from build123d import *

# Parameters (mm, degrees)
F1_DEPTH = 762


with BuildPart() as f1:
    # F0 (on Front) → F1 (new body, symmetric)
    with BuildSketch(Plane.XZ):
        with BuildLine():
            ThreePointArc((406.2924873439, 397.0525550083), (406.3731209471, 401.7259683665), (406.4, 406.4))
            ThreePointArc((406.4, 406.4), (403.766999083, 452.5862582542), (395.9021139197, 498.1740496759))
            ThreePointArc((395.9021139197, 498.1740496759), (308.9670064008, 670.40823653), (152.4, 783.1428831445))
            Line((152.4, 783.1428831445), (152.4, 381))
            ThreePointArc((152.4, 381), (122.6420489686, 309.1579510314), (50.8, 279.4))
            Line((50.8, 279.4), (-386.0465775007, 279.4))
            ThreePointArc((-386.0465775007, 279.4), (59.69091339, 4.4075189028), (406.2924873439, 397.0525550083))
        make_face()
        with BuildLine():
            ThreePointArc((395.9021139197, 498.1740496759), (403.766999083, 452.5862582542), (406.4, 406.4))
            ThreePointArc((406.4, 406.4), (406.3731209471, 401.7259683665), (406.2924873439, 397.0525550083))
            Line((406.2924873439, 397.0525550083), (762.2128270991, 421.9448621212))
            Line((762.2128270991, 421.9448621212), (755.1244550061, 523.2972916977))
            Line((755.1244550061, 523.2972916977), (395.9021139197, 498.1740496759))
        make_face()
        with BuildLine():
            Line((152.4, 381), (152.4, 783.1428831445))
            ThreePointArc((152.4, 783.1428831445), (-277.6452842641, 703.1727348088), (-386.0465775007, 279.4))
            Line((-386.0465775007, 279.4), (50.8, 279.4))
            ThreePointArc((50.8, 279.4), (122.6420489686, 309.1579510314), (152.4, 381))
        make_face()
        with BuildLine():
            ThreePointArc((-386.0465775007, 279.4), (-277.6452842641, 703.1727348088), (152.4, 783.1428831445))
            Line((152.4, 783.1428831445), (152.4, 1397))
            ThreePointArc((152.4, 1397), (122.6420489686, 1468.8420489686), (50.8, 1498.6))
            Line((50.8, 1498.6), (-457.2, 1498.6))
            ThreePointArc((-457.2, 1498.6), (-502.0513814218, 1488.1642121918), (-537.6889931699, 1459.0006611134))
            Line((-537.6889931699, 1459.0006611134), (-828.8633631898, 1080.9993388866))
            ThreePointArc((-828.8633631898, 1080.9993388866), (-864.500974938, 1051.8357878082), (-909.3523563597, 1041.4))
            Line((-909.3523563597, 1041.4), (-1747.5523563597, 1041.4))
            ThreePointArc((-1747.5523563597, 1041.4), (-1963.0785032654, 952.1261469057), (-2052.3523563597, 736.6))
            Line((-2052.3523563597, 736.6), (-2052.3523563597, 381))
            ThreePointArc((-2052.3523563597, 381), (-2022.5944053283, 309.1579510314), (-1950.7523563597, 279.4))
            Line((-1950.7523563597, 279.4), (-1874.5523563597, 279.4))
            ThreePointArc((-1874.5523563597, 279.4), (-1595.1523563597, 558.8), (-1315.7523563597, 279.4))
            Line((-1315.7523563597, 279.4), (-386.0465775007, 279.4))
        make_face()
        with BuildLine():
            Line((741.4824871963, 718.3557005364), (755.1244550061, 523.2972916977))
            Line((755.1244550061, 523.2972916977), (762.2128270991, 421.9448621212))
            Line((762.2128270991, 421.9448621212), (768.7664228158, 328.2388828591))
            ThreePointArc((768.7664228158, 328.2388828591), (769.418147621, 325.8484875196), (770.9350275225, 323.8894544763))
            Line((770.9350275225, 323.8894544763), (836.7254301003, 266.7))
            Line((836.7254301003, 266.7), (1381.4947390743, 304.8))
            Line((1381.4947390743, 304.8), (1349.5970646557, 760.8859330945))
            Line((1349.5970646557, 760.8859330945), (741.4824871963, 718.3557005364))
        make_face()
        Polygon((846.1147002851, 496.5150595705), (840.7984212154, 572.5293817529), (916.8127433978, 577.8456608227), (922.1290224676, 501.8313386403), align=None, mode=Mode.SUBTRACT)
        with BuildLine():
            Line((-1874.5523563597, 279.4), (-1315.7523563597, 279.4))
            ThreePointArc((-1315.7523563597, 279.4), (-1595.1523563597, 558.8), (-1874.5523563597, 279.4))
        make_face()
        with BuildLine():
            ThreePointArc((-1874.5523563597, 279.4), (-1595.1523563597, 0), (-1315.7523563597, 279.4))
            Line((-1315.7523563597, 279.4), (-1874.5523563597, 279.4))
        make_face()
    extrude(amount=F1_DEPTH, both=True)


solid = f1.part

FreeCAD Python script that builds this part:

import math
import FreeCAD as App
import Part
import Sketcher
from FreeCAD import Vector
Q = App.Units.Quantity

doc = App.newDocument("Part")
params = doc.addObject("Spreadsheet::Sheet", "Params")
for row, (alias, value) in enumerate([
    ("sketch1_radius", "16 in"),
    ("sketch1_radius2", "4 in"),
    ("sketch1_radius3", "12 in"),
    ("sketch1_radius4", "11 in"),
    ("sketch1_width", "20 in"),
    ("pad1_length", "60 in"),
], start=1):
    params.set(f"A{row}", alias)
    params.set(f"B{row}", "=" + value)
    params.setAlias(f"B{row}", alias)

body = doc.addObject("PartDesign::Body", "Body")

sketch1 = body.newObject("Sketcher::SketchObject", "Sketch")
sketch1.AttachmentSupport = (doc.getObject("XZ_Plane"), [""])
sketch1.MapMode = "FlatFace"
sketch1.addGeometry([
    Part.ArcOfCircle(Part.Circle(Vector(0, 406.4, 0), Vector(0, 0, 1), 406.4), math.radians(13), math.radians(68)),
    Part.LineSegment(Vector(152.4, 783.1, 0), Vector(152.4, 1397, 0)),
    Part.ArcOfCircle(Part.Circle(Vector(50.8, 1397, 0), Vector(0, 0, 1), 101.6), math.radians(0), math.radians(90)),
    Part.LineSegment(Vector(50.8, 1498.6, 0), Vector(-457.2, 1498.6, 0)),
    Part.ArcOfCircle(Part.Circle(Vector(-457.2, 1397, 0), Vector(0, 0, 1), 101.6), math.radians(90), math.radians(142)),
    Part.LineSegment(Vector(-537.7, 1459, 0), Vector(-828.9, 1081, 0)),
    Part.ArcOfCircle(Part.Circle(Vector(-909.4, 1143, 0), Vector(0, 0, 1), 101.6), math.radians(-90), math.radians(-38)),
    Part.LineSegment(Vector(-909.4, 1041.4, 0), Vector(-1747.6, 1041.4, 0)),
    Part.ArcOfCircle(Part.Circle(Vector(-1747.6, 736.6, 0), Vector(0, 0, 1), 304.8), math.radians(90), math.radians(180)),
    Part.LineSegment(Vector(-2052.4, 736.6, 0), Vector(-2052.4, 381, 0)),
    Part.ArcOfCircle(Part.Circle(Vector(-1950.8, 381, 0), Vector(0, 0, 1), 101.6), math.radians(180), math.radians(270)),
    Part.LineSegment(Vector(-1950.8, 279.4, 0), Vector(-1874.6, 279.4, 0)),
    Part.ArcOfCircle(Part.Circle(Vector(-1595.2, 279.4, 0), Vector(0, 0, 1), 279.4), math.radians(180), math.radians(360)),
    Part.LineSegment(Vector(-1315.8, 279.4, 0), Vector(-386, 279.4, 0)),
    Part.ArcOfCircle(Part.Circle(Vector(0, 406.4, 0), Vector(0, 0, 1), 406.4), math.radians(-162), math.radians(-1)),
    Part.LineSegment(Vector(406.3, 397.1, 0), Vector(762.2, 421.9, 0)),
    Part.LineSegment(Vector(762.2, 421.9, 0), Vector(768.8, 328.2, 0)),
    Part.ArcOfCircle(Part.Circle(Vector(775.1, 328.7, 0), Vector(0, 0, 1), 6.3), math.radians(-176), math.radians(-131)),
    Part.LineSegment(Vector(770.9, 323.9, 0), Vector(836.7, 266.7, 0)),
    Part.LineSegment(Vector(836.7, 266.7, 0), Vector(1381.5, 304.8, 0)),
    Part.LineSegment(Vector(1381.5, 304.8, 0), Vector(1349.6, 760.9, 0)),
    Part.LineSegment(Vector(1349.6, 760.9, 0), Vector(741.5, 718.4, 0)),
    Part.LineSegment(Vector(741.5, 718.4, 0), Vector(755.1, 523.3, 0)),
    Part.LineSegment(Vector(755.1, 523.3, 0), Vector(395.9, 498.2, 0)),
    Part.LineSegment(Vector(922.1, 501.8, 0), Vector(846.1, 496.5, 0)),
    Part.LineSegment(Vector(846.1, 496.5, 0), Vector(840.8, 572.5, 0)),
    Part.LineSegment(Vector(840.8, 572.5, 0), Vector(916.8, 577.8, 0)),
    Part.LineSegment(Vector(916.8, 577.8, 0), Vector(922.1, 501.8, 0)),
], False)
sketch1.addConstraint([
    Sketcher.Constraint("Coincident", 0, 2, 1, 1),
    Sketcher.Constraint("Tangent", 1, 2, 2, 1),
    Sketcher.Constraint("Tangent", 2, 2, 3, 1),
    Sketcher.Constraint("Tangent", 3, 2, 4, 1),
    Sketcher.Constraint("Tangent", 4, 2, 5, 1),
    Sketcher.Constraint("Tangent", 5, 2, 6, 2),
    Sketcher.Constraint("Tangent", 6, 1, 7, 1),
    Sketcher.Constraint("Tangent", 7, 2, 8, 1),
    Sketcher.Constraint("Tangent", 8, 2, 9, 1),
    Sketcher.Constraint("Tangent", 9, 2, 10, 1),
    Sketcher.Constraint("Tangent", 10, 2, 11, 1),
    Sketcher.Constraint("Coincident", 11, 2, 12, 1),
    Sketcher.Constraint("Coincident", 12, 2, 13, 1),
    Sketcher.Constraint("Coincident", 13, 2, 14, 1),
    Sketcher.Constraint("Coincident", 14, 2, 15, 1),
    Sketcher.Constraint("Coincident", 15, 2, 16, 1),
    Sketcher.Constraint("Tangent", 16, 2, 17, 1),
    Sketcher.Constraint("Tangent", 17, 2, 18, 1),
    Sketcher.Constraint("Coincident", 18, 2, 19, 1),
    Sketcher.Constraint("Coincident", 19, 2, 20, 1),
    Sketcher.Constraint("Coincident", 20, 2, 21, 1),
    Sketcher.Constraint("Coincident", 21, 2, 22, 1),
    Sketcher.Constraint("Coincident", 22, 2, 23, 1),
    Sketcher.Constraint("Coincident", 23, 2, 0, 1),
    Sketcher.Constraint("Coincident", 24, 2, 25, 1),
    Sketcher.Constraint("Coincident", 25, 2, 26, 1),
    Sketcher.Constraint("Coincident", 26, 2, 27, 1),
    Sketcher.Constraint("Coincident", 27, 2, 24, 1),
    Sketcher.Constraint("Vertical", 1),
    Sketcher.Constraint("Horizontal", 3),
    Sketcher.Constraint("Horizontal", 7),
    Sketcher.Constraint("Vertical", 9),
    Sketcher.Constraint("Horizontal", 11),
    Sketcher.Constraint("Horizontal", 13),
    Sketcher.Constraint("Coincident", 14, 3, 0, 3),
    Sketcher.Constraint("Equal", 2, 4),
    Sketcher.Constraint("Equal", 4, 6),
    Sketcher.Constraint("Equal", 6, 10),
    Sketcher.Constraint("Equal", 0, 14),
    Sketcher.Constraint("PointOnObject", 0, 3, -2),
    Sketcher.Constraint("Perpendicular", 15, 16),
    Sketcher.Constraint("Perpendicular", 16, 19),
    Sketcher.Constraint("Perpendicular", 19, 20),
    Sketcher.Constraint("Perpendicular", 20, 21),
    Sketcher.Constraint("Perpendicular", 21, 22),
    Sketcher.Constraint("Perpendicular", 22, 23),
    Sketcher.Constraint("Parallel", 23, 24),
    Sketcher.Constraint("Perpendicular", 24, 25),
    Sketcher.Constraint("Perpendicular", 25, 26),
    Sketcher.Constraint("Perpendicular", 26, 27),
    Sketcher.Constraint("Horizontal", 12, 3, 10, 2),
    Sketcher.Constraint("Horizontal", 11, 2, 12, 2),
    Sketcher.Constraint("Equal", 24, 25),
    Sketcher.Constraint("Radius", 0, Q("16 in")),
    Sketcher.Constraint("Radius", 2, Q("4 in")),
    Sketcher.Constraint("Radius", 8, Q("12 in")),
    Sketcher.Constraint("Radius", 12, Q("11 in")),
    Sketcher.Constraint("DistanceX", 3, 2, 3, 1, Q("20 in")),
    Sketcher.Constraint("DistanceX", 7, 2, 7, 1, Q("33 in")),
    Sketcher.Constraint("DistanceX", 11, 1, 11, 2, Q("3 in")),
    Sketcher.Constraint("DistanceY", 9, 2, 9, 1, Q("14 in")),
    Sketcher.Constraint("Radius", 17, Q("0.25 in")),
    Sketcher.Constraint("Distance", 20, Q("18 in")),
    Sketcher.Constraint("Distance", 21, Q("24 in")),
    Sketcher.Constraint("Distance", 24, Q("3 in")),
    Sketcher.Constraint("DistanceY", -1, 1, 0, 3, Q("16 in")),
    Sketcher.Constraint("DistanceX", -1, 1, 2, 3, Q("2 in")),
    Sketcher.Constraint("DistanceY", -1, 1, 2, 3, Q("55 in")),
    Sketcher.Constraint("DistanceY", -1, 1, 6, 3, Q("45 in")),
    Sketcher.Constraint("DistanceY", -1, 1, 19, 2, Q("12 in")),
    Sketcher.Constraint("Distance", 19, Q("21.5 in")),
    Sketcher.Constraint("DistanceY", -1, 1, 18, 2, Q("10.5 in")),
    Sketcher.Constraint("DistanceX", -1, 1, 25, 2, Q("33.1023 in")),
    Sketcher.Constraint("DistanceX", 13, 1, 13, 2, 929.705779),
    Sketcher.Constraint("DistanceY", 16, 2, 0, 2, 454.904),
    Sketcher.Constraint("DistanceX", 15, 2, 17, 2, 8.7222),
    Sketcher.Constraint("DistanceY", 15, 2, 26, 2, 155.900799),
    Sketcher.Constraint("Distance", 16, 93.934872),
    Sketcher.Constraint("Distance", 22, 195.534872),
    Sketcher.Constraint("DistanceX", -1, 1, 17, 3, 775.10095),
])
sketch1.setExpression("Constraints[53]", "Params.sketch1_radius")
sketch1.setExpression("Constraints[54]", "Params.sketch1_radius2")
sketch1.setExpression("Constraints[55]", "Params.sketch1_radius3")
sketch1.setExpression("Constraints[56]", "Params.sketch1_radius4")
sketch1.setExpression("Constraints[57]", "Params.sketch1_width")
pad1 = body.newObject("PartDesign::Pad", "Pad")
pad1.Profile = sketch1
pad1.setExpression("Length", "Params.pad1_length")
pad1.Midplane = True

doc.recompute()
